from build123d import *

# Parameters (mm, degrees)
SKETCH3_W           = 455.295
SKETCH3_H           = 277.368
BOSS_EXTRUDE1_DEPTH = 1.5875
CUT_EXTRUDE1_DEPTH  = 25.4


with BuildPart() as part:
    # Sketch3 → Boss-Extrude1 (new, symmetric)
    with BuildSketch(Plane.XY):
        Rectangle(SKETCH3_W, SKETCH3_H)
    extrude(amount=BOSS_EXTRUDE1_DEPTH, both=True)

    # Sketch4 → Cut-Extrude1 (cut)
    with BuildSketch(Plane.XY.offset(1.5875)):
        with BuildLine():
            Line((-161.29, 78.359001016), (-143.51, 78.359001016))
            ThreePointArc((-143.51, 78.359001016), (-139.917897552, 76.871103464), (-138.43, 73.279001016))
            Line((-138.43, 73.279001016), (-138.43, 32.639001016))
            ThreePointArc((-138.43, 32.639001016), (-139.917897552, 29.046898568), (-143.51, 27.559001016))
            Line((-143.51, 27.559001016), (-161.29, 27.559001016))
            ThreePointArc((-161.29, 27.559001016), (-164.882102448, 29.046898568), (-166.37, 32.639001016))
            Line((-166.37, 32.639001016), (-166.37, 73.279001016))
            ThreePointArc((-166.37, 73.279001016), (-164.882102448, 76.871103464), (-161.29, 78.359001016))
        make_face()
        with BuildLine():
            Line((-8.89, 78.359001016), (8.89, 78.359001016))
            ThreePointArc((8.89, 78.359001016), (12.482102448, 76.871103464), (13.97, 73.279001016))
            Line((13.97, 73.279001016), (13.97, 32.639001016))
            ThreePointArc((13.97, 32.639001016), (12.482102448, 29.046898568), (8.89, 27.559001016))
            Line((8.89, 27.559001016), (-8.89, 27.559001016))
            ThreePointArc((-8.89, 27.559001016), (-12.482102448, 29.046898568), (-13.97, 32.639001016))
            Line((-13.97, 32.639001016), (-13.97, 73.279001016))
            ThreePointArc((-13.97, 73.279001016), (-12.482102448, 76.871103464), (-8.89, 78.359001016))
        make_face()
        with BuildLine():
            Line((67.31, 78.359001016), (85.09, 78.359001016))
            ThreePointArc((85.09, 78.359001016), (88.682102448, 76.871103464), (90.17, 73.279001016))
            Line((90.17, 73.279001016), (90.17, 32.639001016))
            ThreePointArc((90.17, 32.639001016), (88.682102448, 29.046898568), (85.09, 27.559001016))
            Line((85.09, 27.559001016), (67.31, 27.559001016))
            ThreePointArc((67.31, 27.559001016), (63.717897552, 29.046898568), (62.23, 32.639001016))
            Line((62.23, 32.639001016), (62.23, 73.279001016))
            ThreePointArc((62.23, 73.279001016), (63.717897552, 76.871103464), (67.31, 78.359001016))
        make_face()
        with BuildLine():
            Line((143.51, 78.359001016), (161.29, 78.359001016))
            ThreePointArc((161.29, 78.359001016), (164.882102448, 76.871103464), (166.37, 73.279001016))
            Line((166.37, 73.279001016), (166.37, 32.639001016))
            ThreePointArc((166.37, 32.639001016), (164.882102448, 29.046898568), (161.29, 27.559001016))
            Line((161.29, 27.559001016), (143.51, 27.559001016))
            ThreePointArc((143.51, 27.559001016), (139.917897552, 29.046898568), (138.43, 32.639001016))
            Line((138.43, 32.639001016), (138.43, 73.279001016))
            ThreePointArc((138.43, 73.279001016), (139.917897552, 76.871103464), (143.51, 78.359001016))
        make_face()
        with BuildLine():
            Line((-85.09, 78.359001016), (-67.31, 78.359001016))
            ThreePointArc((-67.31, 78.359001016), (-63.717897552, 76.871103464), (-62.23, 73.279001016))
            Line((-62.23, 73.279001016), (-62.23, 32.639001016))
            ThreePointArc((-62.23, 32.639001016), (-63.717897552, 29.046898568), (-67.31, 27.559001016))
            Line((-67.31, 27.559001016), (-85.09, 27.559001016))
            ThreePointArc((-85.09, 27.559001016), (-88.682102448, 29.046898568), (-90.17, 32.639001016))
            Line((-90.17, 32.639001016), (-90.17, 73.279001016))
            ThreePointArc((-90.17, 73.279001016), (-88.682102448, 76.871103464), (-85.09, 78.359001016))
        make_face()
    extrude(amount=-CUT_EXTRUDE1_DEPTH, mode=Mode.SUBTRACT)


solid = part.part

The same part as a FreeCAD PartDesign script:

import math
import FreeCAD as App
import Part
import Sketcher
from FreeCAD import Vector
Q = App.Units.Quantity


def add_polygon(sketch, points):
    """Adds a closed chain of lines whose ends are joined by coincident constraints."""
    first, n = sketch.GeometryCount, len(points)
    for a, b in zip(points, points[1:] + points[:1]):
        sketch.addGeometry(Part.LineSegment(App.Vector(*a, 0), App.Vector(*b, 0)), False)
    for i in range(n):
        sketch.addConstraint(Sketcher.Constraint("Coincident", first + i, 2, first + (i + 1) % n, 1))

doc = App.newDocument("Part")
body = doc.addObject("PartDesign::Body", "Body")

# Sketch on XY plane
sketch1 = doc.addObject("Sketcher::SketchObject", "Sketch")
body.addObject(sketch1)
sketch1.AttachmentSupport = (doc.XY_Plane, [""])
sketch1.MapMode = "FlatFace"
add_polygon(sketch1, [(-227.6475, 138.684), (-227.6475, -138.684), (227.6475, -138.684), (227.6475, 138.684)])  # lines 0-3
sketch1.addConstraint(Sketcher.Constraint("Vertical", 0))
sketch1.addConstraint(Sketcher.Constraint("Horizontal", 1))
sketch1.addConstraint(Sketcher.Constraint("Vertical", 2))
sketch1.addConstraint(Sketcher.Constraint("Horizontal", 3))
sketch1.addConstraint(Sketcher.Constraint("Symmetric", 0, 2, 2, 2, -1, 1))
sketch1.addConstraint(Sketcher.Constraint("DistanceY", 0, 2, 0, 1, Q("10.92 in")))
sketch1.addConstraint(Sketcher.Constraint("DistanceX", 1, 1, 1, 2, Q("17.925 in")))
pad1 = doc.addObject("PartDesign::Pad", "Pad")
body.addObject(pad1)
pad1.Profile = sketch1
pad1.Length = Q("0.125 in")
pad1.Midplane = True

# Sketch on XY plane
sketch2 = doc.addObject("Sketcher::SketchObject", "Sketch001")
body.addObject(sketch2)
sketch2.AttachmentSupport = (doc.XY_Plane, [""])
sketch2.MapMode = "FlatFace"
sketch2.AttachmentOffset = App.Placement(Vector(0, 0, 0.0625 * 25.4), App.Rotation())
sketch2.addGeometry(Part.LineSegment(Vector(-143.51, 78.359001, 0), Vector(-161.29, 78.359001, 0)), False)
sketch2.addGeometry(Part.ArcOfCircle(Part.Circle(Vector(-161.29, 73.279001, 0), Vector(0, 0, 1), 5.08), math.radians(90), math.radians(180)), False)
sketch2.addGeometry(Part.LineSegment(Vector(-166.37, 73.279001, 0), Vector(-166.37, 32.639001, 0)), False)
sketch2.addGeometry(Part.ArcOfCircle(Part.Circle(Vector(-161.29, 32.639001, 0), Vector(0, 0, 1), 5.08), math.radians(-180), math.radians(-90)), False)
sketch2.addGeometry(Part.LineSegment(Vector(-161.29, 27.559001, 0), Vector(-143.51, 27.559001, 0)), False)
sketch2.addGeometry(Part.ArcOfCircle(Part.Circle(Vector(-143.51, 32.639001, 0), Vector(0, 0, 1), 5.08), math.radians(-90), math.radians(0)), False)
sketch2.addGeometry(Part.LineSegment(Vector(-138.43, 32.639001, 0), Vector(-138.43, 73.279001, 0)), False)
sketch2.addGeometry(Part.ArcOfCircle(Part.Circle(Vector(-143.51, 73.279001, 0), Vector(0, 0, 1), 5.08), math.radians(0), math.radians(90)), False)
sketch2.addGeometry(Part.LineSegment(Vector(8.89, 78.359001, 0), Vector(-8.89, 78.359001, 0)), False)
sketch2.addGeometry(Part.ArcOfCircle(Part.Circle(Vector(-8.89, 73.279001, 0), Vector(0, 0, 1), 5.08), math.radians(90), math.radians(180)), False)
sketch2.addGeometry(Part.LineSegment(Vector(-13.97, 73.279001, 0), Vector(-13.97, 32.639001, 0)), False)
sketch2.addGeometry(Part.ArcOfCircle(Part.Circle(Vector(-8.89, 32.639001, 0), Vector(0, 0, 1), 5.08), math.radians(-180), math.radians(-90)), False)
sketch2.addGeometry(Part.LineSegment(Vector(-8.89, 27.559001, 0), Vector(8.89, 27.559001, 0)), False)
sketch2.addGeometry(Part.ArcOfCircle(Part.Circle(Vector(8.89, 32.639001, 0), Vector(0, 0, 1), 5.08), math.radians(-90), math.radians(0)), False)
sketch2.addGeometry(Part.LineSegment(Vector(13.97, 32.639001, 0), Vector(13.97, 73.279001, 0)), False)
sketch2.addGeometry(Part.ArcOfCircle(Part.Circle(Vector(8.89, 73.279001, 0), Vector(0, 0, 1), 5.08), math.radians(0), math.radians(90)), False)
sketch2.addGeometry(Part.LineSegment(Vector(85.09, 78.359001, 0), Vector(67.31, 78.359001, 0)), False)
sketch2.addGeometry(Part.ArcOfCircle(Part.Circle(Vector(67.31, 73.279001, 0), Vector(0, 0, 1), 5.08), math.radians(90), math.radians(180)), False)
sketch2.addGeometry(Part.LineSegment(Vector(62.23, 73.279001, 0), Vector(62.23, 32.639001, 0)), False)
sketch2.addGeometry(Part.ArcOfCircle(Part.Circle(Vector(67.31, 32.639001, 0), Vector(0, 0, 1), 5.08), math.radians(-180), math.radians(-90)), False)
sketch2.addGeometry(Part.LineSegment(Vector(67.31, 27.559001, 0), Vector(85.09, 27.559001, 0)), False)
sketch2.addGeometry(Part.ArcOfCircle(Part.Circle(Vector(85.09, 32.639001, 0), Vector(0, 0, 1), 5.08), math.radians(-90), math.radians(0)), False)
sketch2.addGeometry(Part.LineSegment(Vector(90.17, 32.639001, 0), Vector(90.17, 73.279001, 0)), False)
sketch2.addGeometry(Part.ArcOfCircle(Part.Circle(Vector(85.09, 73.279001, 0), Vector(0, 0, 1), 5.08), math.radians(0), math.radians(90)), False)
sketch2.addGeometry(Part.LineSegment(Vector(161.29, 78.359001, 0), Vector(143.51, 78.359001, 0)), False)
sketch2.addGeometry(Part.ArcOfCircle(Part.Circle(Vector(143.51, 73.279001, 0), Vector(0, 0, 1), 5.08), math.radians(90), math.radians(180)), False)
sketch2.addGeometry(Part.LineSegment(Vector(138.43, 73.279001, 0), Vector(138.43, 32.639001, 0)), False)
sketch2.addGeometry(Part.ArcOfCircle(Part.Circle(Vector(143.51, 32.639001, 0), Vector(0, 0, 1), 5.08), math.radians(-180), math.radians(-90)), False)
sketch2.addGeometry(Part.LineSegment(Vector(143.51, 27.559001, 0), Vector(161.29, 27.559001, 0)), False)
sketch2.addGeometry(Part.ArcOfCircle(Part.Circle(Vector(161.29, 32.639001, 0), Vector(0, 0, 1), 5.08), math.radians(-90), math.radians(0)), False)
sketch2.addGeometry(Part.LineSegment(Vector(166.37, 32.639001, 0), Vector(166.37, 73.279001, 0)), False)
sketch2.addGeometry(Part.ArcOfCircle(Part.Circle(Vector(161.29, 73.279001, 0), Vector(0, 0, 1), 5.08), math.radians(0), math.radians(90)), False)
sketch2.addGeometry(Part.LineSegment(Vector(-67.31, 78.359001, 0), Vector(-85.09, 78.359001, 0)), False)
sketch2.addGeometry(Part.ArcOfCircle(Part.Circle(Vector(-85.09, 73.279001, 0), Vector(0, 0, 1), 5.08), math.radians(90), math.radians(180)), False)
sketch2.addGeometry(Part.LineSegment(Vector(-90.17, 73.279001, 0), Vector(-90.17, 32.639001, 0)), False)
sketch2.addGeometry(Part.ArcOfCircle(Part.Circle(Vector(-85.09, 32.639001, 0), Vector(0, 0, 1), 5.08), math.radians(-180), math.radians(-90)), False)
sketch2.addGeometry(Part.LineSegment(Vector(-85.09, 27.559001, 0), Vector(-67.31, 27.559001, 0)), False)
sketch2.addGeometry(Part.ArcOfCircle(Part.Circle(Vector(-67.31, 32.639001, 0), Vector(0, 0, 1), 5.08), math.radians(-90), math.radians(0)), False)
sketch2.addGeometry(Part.LineSegment(Vector(-62.23, 32.639001, 0), Vector(-62.23, 73.279001, 0)), False)
sketch2.addGeometry(Part.ArcOfCircle(Part.Circle(Vector(-67.31, 73.279001, 0), Vector(0, 0, 1), 5.08), math.radians(0), math.radians(90)), False)
sketch2.addConstraint(Sketcher.Constraint("Tangent", 0, 2, 1, 1))
sketch2.addConstraint(Sketcher.Constraint("Tangent", 1, 2, 2, 1))
sketch2.addConstraint(Sketcher.Constraint("Tangent", 2, 2, 3, 1))
sketch2.addConstraint(Sketcher.Constraint("Tangent", 3, 2, 4, 1))
sketch2.addConstraint(Sketcher.Constraint("Tangent", 4, 2, 5, 1))
sketch2.addConstraint(Sketcher.Constraint("Tangent", 5, 2, 6, 1))
sketch2.addConstraint(Sketcher.Constraint("Tangent", 6, 2, 7, 1))
sketch2.addConstraint(Sketcher.Constraint("Tangent", 7, 2, 0, 1))
sketch2.addConstraint(Sketcher.Constraint("Tangent", 8, 2, 9, 1))
sketch2.addConstraint(Sketcher.Constraint("Tangent", 9, 2, 10, 1))
sketch2.addConstraint(Sketcher.Constraint("Tangent", 10, 2, 11, 1))
sketch2.addConstraint(Sketcher.Constraint("Tangent", 11, 2, 12, 1))
sketch2.addConstraint(Sketcher.Constraint("Tangent", 12, 2, 13, 1))
sketch2.addConstraint(Sketcher.Constraint("Tangent", 13, 2, 14, 1))
sketch2.addConstraint(Sketcher.Constraint("Tangent", 14, 2, 15, 1))
sketch2.addConstraint(Sketcher.Constraint("Tangent", 15, 2, 8, 1))
sketch2.addConstraint(Sketcher.Constraint("Tangent", 16, 2, 17, 1))
sketch2.addConstraint(Sketcher.Constraint("Tangent", 17, 2, 18, 1))
sketch2.addConstraint(Sketcher.Constraint("Tangent", 18, 2, 19, 1))
sketch2.addConstraint(Sketcher.Constraint("Tangent", 19, 2, 20, 1))
sketch2.addConstraint(Sketcher.Constraint("Tangent", 20, 2, 21, 1))
sketch2.addConstraint(Sketcher.Constraint("Tangent", 21, 2, 22, 1))
sketch2.addConstraint(Sketcher.Constraint("Tangent", 22, 2, 23, 1))
sketch2.addConstraint(Sketcher.Constraint("Tangent", 23, 2, 16, 1))
sketch2.addConstraint(Sketcher.Constraint("Tangent", 24, 2, 25, 1))
sketch2.addConstraint(Sketcher.Constraint("Tangent", 25, 2, 26, 1))
sketch2.addConstraint(Sketcher.Constraint("Tangent", 26, 2, 27, 1))
sketch2.addConstraint(Sketcher.Constraint("Tangent", 27, 2, 28, 1))
sketch2.addConstraint(Sketcher.Constraint("Tangent", 28, 2, 29, 1))
sketch2.addConstraint(Sketcher.Constraint("Tangent", 29, 2, 30, 1))
sketch2.addConstraint(Sketcher.Constraint("Tangent", 30, 2, 31, 1))
sketch2.addConstraint(Sketcher.Constraint("Tangent", 31, 2, 24, 1))
sketch2.addConstraint(Sketcher.Constraint("Tangent", 32, 2, 33, 1))
sketch2.addConstraint(Sketcher.Constraint("Tangent", 33, 2, 34, 1))
sketch2.addConstraint(Sketcher.Constraint("Tangent", 34, 2, 35, 1))
sketch2.addConstraint(Sketcher.Constraint("Tangent", 35, 2, 36, 1))
sketch2.addConstraint(Sketcher.Constraint("Tangent", 36, 2, 37, 1))
sketch2.addConstraint(Sketcher.Constraint("Tangent", 37, 2, 38, 1))
sketch2.addConstraint(Sketcher.Constraint("Tangent", 38, 2, 39, 1))
sketch2.addConstraint(Sketcher.Constraint("Tangent", 39, 2, 32, 1))
sketch2.addConstraint(Sketcher.Constraint("Horizontal", 0))
sketch2.addConstraint(Sketcher.Constraint("Vertical", 2))
sketch2.addConstraint(Sketcher.Constraint("Horizontal", 4))
sketch2.addConstraint(Sketcher.Constraint("Vertical", 6))
sketch2.addConstraint(Sketcher.Constraint("Horizontal", 8))
sketch2.addConstraint(Sketcher.Constraint("Vertical", 10))
sketch2.addConstraint(Sketcher.Constraint("Horizontal", 12))
sketch2.addConstraint(Sketcher.Constraint("Vertical", 14))
sketch2.addConstraint(Sketcher.Constraint("Horizontal", 16))
sketch2.addConstraint(Sketcher.Constraint("Vertical", 18))
sketch2.addConstraint(Sketcher.Constraint("Horizontal", 20))
sketch2.addConstraint(Sketcher.Constraint("Vertical", 22))
sketch2.addConstraint(Sketcher.Constraint("Horizontal", 24))
sketch2.addConstraint(Sketcher.Constraint("Vertical", 26))
sketch2.addConstraint(Sketcher.Constraint("Horizontal", 28))
sketch2.addConstraint(Sketcher.Constraint("Vertical", 30))
sketch2.addConstraint(Sketcher.Constraint("Horizontal", 32))
sketch2.addConstraint(Sketcher.Constraint("Vertical", 34))
sketch2.addConstraint(Sketcher.Constraint("Horizontal", 36))
sketch2.addConstraint(Sketcher.Constraint("Vertical", 38))
sketch2.addConstraint(Sketcher.Constraint("Equal", 1, 3))
sketch2.addConstraint(Sketcher.Constraint("Equal", 3, 5))
sketch2.addConstraint(Sketcher.Constraint("Equal", 5, 7))
sketch2.addConstraint(Sketcher.Constraint("Equal", 7, 9))
sketch2.addConstraint(Sketcher.Constraint("Equal", 9, 11))
sketch2.addConstraint(Sketcher.Constraint("Equal", 11, 13))
sketch2.addConstraint(Sketcher.Constraint("Equal", 13, 15))
sketch2.addConstraint(Sketcher.Constraint("Equal", 15, 17))
sketch2.addConstraint(Sketcher.Constraint("Equal", 17, 19))
sketch2.addConstraint(Sketcher.Constraint("Equal", 19, 21))
sketch2.addConstraint(Sketcher.Constraint("Equal", 21, 23))
sketch2.addConstraint(Sketcher.Constraint("Equal", 23, 25))
sketch2.addConstraint(Sketcher.Constraint("Equal", 25, 27))
sketch2.addConstraint(Sketcher.Constraint("Equal", 27, 29))
sketch2.addConstraint(Sketcher.Constraint("Equal", 29, 31))
sketch2.addConstraint(Sketcher.Constraint("Equal", 31, 33))
sketch2.addConstraint(Sketcher.Constraint("Equal", 33, 35))
sketch2.addConstraint(Sketcher.Constraint("Equal", 35, 37))
sketch2.addConstraint(Sketcher.Constraint("Equal", 37, 39))
sketch2.addConstraint(Sketcher.Constraint("Symmetric", 7, 3, 25, 3, -2))
sketch2.addConstraint(Sketcher.Constraint("Symmetric", 3, 3, 29, 3, -2))
sketch2.addConstraint(Sketcher.Constraint("Symmetric", 23, 3, 33, 3, -2))
sketch2.addConstraint(Sketcher.Constraint("Symmetric", 19, 3, 37, 3, -2))
sketch2.addConstraint(Sketcher.Constraint("Horizontal", 7, 3, 9, 3))
sketch2.addConstraint(Sketcher.Constraint("Horizontal", 5, 3, 11, 3))
sketch2.addConstraint(Sketcher.Constraint("Horizontal", 15, 3, 17, 3))
sketch2.addConstraint(Sketcher.Constraint("Horizontal", 13, 3, 19, 3))
sketch2.addConstraint(Sketcher.Constraint("Equal", 4, 8))
sketch2.addConstraint(Sketcher.Constraint("Equal", 12, 16))
sketch2.addConstraint(Sketcher.Constraint("Radius", 1, Q("0.2 in")))
sketch2.addConstraint(Sketcher.Constraint("DistanceX", 0, 2, 0, 1, Q("0.7 in")))
sketch2.addConstraint(Sketcher.Constraint("DistanceY", 2, 2, 2, 1, Q("1.6 in")))
sketch2.addConstraint(Sketcher.Constraint("DistanceX", 1, 3, 9, 3, Q("6 in")))
sketch2.addConstraint(Sketcher.Constraint("DistanceX", 9, 3, 17, 3, Q("3 in")))
sketch2.addConstraint(Sketcher.Constraint("DistanceX", 17, 3, 25, 3, Q("3 in")))
sketch2.addConstraint(Sketcher.Constraint("DistanceY", -1, 1, 1, 3, Q("2.885 in")))
pocket1 = doc.addObject("PartDesign::Pocket", "Pocket")
body.addObject(pocket1)
pocket1.Profile = sketch2
pocket1.Length = Q("1 in")

doc.recompute()
